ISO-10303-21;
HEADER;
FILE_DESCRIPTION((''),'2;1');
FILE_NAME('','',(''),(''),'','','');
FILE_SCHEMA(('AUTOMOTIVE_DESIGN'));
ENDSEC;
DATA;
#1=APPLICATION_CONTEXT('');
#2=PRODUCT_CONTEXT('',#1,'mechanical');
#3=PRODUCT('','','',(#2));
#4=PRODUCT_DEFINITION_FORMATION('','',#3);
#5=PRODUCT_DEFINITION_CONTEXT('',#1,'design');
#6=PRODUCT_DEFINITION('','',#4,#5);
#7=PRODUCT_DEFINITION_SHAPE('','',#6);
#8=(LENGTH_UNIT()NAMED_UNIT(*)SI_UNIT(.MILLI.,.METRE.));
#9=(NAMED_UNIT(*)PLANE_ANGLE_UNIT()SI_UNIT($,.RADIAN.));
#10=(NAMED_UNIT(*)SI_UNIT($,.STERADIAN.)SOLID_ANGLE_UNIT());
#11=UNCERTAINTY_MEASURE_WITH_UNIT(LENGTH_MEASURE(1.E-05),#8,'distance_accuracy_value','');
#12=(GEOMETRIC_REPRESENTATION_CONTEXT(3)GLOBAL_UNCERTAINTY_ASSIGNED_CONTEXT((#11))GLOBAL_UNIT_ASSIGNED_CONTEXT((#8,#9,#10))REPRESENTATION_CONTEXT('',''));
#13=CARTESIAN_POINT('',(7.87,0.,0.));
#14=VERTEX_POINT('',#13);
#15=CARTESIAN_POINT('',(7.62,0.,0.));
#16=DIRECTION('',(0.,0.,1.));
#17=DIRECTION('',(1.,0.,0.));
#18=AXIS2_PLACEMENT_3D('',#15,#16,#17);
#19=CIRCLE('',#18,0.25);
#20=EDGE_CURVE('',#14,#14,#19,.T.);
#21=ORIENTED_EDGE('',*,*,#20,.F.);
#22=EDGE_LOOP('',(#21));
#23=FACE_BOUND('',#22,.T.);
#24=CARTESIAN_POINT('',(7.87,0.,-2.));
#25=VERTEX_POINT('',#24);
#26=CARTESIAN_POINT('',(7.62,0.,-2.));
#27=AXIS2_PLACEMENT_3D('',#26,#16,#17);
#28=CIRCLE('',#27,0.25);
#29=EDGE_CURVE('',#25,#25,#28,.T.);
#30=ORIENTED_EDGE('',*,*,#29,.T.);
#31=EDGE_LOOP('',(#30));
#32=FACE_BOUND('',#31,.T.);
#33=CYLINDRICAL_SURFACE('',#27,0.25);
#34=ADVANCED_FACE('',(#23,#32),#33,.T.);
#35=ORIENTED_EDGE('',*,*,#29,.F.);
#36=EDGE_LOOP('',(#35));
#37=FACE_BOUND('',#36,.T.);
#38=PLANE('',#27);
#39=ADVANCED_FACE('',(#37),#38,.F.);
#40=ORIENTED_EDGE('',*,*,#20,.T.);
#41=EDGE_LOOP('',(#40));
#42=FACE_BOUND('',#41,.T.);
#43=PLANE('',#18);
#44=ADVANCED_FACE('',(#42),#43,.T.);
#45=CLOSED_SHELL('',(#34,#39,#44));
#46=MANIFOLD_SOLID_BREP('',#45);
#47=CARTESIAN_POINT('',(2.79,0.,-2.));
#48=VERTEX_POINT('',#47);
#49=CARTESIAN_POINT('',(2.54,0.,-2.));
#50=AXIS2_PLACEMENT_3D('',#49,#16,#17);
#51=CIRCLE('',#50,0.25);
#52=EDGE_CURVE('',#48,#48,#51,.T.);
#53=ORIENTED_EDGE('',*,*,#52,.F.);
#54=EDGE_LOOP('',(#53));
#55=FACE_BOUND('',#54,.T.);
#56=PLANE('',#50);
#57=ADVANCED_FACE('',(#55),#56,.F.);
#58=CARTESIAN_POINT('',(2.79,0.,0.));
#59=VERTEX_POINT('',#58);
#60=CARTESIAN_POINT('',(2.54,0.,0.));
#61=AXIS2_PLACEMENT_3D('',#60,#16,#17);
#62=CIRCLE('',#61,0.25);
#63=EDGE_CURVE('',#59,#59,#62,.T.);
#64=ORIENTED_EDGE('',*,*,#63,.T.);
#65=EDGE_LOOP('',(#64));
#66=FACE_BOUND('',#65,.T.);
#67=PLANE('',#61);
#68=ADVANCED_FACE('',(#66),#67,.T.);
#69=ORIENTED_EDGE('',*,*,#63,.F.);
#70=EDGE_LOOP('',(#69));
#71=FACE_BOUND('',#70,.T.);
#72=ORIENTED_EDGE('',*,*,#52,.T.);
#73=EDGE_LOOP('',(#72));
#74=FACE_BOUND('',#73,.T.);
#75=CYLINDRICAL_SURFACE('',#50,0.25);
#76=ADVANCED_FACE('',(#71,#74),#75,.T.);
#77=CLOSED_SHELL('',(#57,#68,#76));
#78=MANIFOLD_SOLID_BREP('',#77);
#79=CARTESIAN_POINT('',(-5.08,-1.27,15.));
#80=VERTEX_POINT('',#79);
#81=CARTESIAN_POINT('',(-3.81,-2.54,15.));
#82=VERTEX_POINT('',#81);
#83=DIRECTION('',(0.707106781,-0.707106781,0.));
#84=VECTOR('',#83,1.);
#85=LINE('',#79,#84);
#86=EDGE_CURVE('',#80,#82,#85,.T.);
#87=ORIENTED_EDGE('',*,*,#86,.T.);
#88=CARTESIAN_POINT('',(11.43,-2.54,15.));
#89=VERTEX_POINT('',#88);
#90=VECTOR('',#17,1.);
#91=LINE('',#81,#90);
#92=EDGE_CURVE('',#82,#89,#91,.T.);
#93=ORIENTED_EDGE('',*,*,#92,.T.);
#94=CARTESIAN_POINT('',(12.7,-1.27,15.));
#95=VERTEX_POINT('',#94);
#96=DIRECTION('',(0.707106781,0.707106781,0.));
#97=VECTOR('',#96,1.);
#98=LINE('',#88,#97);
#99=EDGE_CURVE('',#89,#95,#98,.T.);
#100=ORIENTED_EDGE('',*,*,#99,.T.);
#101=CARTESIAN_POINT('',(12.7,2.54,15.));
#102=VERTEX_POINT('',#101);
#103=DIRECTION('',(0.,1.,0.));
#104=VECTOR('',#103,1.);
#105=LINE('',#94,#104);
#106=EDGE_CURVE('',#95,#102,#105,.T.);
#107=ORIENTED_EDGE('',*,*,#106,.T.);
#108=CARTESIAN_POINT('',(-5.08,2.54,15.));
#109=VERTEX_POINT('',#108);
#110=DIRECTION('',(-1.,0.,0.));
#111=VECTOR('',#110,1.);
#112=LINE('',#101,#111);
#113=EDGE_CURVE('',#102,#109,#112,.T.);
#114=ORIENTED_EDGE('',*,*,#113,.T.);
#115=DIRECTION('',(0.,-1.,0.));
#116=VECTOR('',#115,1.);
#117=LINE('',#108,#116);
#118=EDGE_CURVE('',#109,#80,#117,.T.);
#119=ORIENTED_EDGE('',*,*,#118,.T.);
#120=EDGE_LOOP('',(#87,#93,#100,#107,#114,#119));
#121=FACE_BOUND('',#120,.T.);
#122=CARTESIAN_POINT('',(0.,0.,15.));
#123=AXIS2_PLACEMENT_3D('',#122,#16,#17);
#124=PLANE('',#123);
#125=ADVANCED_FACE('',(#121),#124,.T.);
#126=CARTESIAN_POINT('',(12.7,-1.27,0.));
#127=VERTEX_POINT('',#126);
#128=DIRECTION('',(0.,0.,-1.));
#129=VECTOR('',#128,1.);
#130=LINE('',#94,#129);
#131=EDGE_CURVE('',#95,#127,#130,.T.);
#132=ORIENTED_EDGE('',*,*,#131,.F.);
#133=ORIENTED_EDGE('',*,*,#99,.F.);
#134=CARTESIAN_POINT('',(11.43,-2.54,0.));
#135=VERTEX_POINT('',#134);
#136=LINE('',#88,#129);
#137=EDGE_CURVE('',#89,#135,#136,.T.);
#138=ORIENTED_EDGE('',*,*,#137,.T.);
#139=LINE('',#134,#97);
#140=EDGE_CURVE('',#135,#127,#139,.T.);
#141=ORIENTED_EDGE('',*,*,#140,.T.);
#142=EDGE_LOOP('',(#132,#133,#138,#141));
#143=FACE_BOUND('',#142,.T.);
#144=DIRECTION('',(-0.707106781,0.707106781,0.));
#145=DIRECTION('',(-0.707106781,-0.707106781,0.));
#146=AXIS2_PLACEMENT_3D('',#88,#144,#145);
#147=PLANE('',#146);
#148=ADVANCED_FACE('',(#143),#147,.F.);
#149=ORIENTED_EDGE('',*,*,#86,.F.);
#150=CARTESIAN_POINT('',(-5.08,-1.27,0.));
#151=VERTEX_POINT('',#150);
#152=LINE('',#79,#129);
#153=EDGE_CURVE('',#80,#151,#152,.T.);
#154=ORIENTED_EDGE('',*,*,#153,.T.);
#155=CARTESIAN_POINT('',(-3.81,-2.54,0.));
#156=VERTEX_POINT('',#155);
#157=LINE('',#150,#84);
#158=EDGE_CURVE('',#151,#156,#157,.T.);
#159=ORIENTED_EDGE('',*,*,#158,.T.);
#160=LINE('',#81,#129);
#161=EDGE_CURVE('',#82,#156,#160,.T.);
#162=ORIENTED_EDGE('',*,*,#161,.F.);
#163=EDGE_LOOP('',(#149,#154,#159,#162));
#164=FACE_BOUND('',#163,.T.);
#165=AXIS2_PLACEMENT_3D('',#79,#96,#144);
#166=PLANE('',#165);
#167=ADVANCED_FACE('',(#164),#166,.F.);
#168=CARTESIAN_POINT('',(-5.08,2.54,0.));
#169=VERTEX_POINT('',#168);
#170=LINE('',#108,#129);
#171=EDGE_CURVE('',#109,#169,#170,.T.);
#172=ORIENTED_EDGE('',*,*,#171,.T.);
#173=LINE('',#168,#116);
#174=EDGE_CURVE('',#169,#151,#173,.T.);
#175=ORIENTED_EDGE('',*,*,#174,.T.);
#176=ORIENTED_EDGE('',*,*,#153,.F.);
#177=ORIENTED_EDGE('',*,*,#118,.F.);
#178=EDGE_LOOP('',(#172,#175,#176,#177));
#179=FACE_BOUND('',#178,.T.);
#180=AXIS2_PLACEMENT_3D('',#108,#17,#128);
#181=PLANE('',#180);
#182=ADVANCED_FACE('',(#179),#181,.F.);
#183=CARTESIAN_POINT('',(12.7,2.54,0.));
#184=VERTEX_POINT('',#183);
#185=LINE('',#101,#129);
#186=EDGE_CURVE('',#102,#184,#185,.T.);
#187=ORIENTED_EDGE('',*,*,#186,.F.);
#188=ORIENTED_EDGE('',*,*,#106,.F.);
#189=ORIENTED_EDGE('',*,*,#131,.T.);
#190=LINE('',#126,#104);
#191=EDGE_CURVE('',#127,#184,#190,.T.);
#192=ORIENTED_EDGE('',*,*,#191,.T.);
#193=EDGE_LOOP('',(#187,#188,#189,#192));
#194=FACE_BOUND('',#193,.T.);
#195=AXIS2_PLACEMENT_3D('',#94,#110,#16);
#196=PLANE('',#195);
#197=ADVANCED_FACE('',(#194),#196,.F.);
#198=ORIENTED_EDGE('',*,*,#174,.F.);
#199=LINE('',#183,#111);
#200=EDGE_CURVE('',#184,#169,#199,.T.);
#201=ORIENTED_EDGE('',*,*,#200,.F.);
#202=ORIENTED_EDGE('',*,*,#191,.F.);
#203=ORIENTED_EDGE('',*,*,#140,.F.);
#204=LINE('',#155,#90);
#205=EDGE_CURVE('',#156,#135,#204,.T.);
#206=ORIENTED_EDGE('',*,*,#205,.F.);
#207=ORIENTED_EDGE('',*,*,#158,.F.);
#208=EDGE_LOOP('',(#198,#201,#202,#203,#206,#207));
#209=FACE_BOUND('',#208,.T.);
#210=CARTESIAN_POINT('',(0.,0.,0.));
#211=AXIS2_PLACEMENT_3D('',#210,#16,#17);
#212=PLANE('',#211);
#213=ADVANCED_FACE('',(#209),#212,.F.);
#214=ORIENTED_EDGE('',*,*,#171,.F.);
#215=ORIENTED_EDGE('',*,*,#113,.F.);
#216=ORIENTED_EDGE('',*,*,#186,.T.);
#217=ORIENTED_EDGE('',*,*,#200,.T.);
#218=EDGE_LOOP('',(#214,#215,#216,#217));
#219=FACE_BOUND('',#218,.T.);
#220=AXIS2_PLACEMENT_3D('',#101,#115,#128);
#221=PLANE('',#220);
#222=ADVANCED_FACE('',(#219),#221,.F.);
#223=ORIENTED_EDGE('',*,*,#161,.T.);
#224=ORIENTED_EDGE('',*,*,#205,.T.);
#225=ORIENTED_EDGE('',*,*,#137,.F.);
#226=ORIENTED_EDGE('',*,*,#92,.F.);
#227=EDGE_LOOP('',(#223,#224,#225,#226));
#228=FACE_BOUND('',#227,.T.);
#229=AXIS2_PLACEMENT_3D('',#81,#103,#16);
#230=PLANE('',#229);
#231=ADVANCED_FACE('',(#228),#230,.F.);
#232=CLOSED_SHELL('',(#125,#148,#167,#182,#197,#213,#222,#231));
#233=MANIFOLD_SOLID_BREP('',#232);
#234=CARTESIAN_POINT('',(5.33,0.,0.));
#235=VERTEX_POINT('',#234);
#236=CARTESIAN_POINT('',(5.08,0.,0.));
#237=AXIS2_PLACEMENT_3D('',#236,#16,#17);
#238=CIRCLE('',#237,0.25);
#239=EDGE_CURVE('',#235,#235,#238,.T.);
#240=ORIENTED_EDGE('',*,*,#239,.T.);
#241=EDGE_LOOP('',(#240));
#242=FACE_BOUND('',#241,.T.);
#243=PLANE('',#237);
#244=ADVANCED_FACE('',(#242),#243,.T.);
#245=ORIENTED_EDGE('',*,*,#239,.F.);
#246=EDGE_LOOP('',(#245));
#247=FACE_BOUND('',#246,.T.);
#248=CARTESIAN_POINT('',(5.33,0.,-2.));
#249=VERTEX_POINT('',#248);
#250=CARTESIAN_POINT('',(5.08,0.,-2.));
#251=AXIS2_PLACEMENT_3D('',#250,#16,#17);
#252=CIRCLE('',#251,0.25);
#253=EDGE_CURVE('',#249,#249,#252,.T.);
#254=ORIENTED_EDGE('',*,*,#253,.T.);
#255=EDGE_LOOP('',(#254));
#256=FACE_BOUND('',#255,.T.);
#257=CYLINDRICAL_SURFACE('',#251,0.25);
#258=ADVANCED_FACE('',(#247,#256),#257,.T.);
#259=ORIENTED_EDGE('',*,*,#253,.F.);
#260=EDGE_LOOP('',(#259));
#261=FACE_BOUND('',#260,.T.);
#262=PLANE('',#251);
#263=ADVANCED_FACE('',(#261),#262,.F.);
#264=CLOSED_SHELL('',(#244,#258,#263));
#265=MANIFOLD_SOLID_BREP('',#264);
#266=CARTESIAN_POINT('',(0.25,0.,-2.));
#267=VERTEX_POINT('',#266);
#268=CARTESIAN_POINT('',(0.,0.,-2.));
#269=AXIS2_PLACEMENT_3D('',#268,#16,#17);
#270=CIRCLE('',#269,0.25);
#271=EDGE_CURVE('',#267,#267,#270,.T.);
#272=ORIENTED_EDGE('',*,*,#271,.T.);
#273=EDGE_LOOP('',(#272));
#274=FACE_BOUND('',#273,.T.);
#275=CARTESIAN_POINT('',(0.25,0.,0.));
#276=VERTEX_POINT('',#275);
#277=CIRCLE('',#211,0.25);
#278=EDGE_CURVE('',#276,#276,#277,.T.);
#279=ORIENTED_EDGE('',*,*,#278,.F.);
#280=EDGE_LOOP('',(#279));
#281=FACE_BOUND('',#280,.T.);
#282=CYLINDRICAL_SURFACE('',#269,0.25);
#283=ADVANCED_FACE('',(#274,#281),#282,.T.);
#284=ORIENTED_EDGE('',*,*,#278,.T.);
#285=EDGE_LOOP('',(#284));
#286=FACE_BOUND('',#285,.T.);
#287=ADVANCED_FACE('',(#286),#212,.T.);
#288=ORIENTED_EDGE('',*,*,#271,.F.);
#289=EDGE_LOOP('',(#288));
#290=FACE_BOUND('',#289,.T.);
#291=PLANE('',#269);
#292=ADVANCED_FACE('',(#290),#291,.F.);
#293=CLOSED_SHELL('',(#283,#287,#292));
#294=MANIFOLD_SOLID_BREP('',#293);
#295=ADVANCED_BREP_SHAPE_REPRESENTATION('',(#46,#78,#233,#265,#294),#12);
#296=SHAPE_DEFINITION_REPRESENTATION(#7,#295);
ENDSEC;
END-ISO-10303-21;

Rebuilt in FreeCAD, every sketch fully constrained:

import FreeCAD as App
import Part
import Sketcher


def add_polygon(sketch, points):
    """Adds a closed chain of lines whose ends are joined by coincident constraints."""
    first, n = sketch.GeometryCount, len(points)
    for a, b in zip(points, points[1:] + points[:1]):
        sketch.addGeometry(Part.LineSegment(App.Vector(*a, 0), App.Vector(*b, 0)), False)
    for i in range(n):
        sketch.addConstraint(Sketcher.Constraint("Coincident", first + i, 2, first + (i + 1) % n, 1))

doc = App.newDocument("Part")
body = doc.addObject("PartDesign::Body", "Body")

sketch1 = body.newObject("Sketcher::SketchObject", "Sketch")
sketch1.AttachmentSupport = (doc.getObject("XY_Plane"), [""])
sketch1.MapMode = "FlatFace"
add_polygon(sketch1, [(-5.08, 2.54), (-5.08, -1.27), (-3.81, -2.54), (11.43, -2.54), (12.7, -1.27), (12.7, 2.54)])
sketch1.addConstraint(Sketcher.Constraint("Vertical", 0))
sketch1.addConstraint(Sketcher.Constraint("Horizontal", 2))
sketch1.addConstraint(Sketcher.Constraint("Vertical", 4))
sketch1.addConstraint(Sketcher.Constraint("Horizontal", 5))
sketch1.addConstraint(Sketcher.Constraint("Perpendicular", 1, 3))
sketch1.addConstraint(Sketcher.Constraint("Horizontal", 0, 2, 3, 2))
sketch1.addConstraint(Sketcher.Constraint("Equal", 1, 3))
sketch1.addConstraint(Sketcher.Constraint("DistanceX", 2, 1, 2, 2, 15.24))
sketch1.addConstraint(Sketcher.Constraint("DistanceX", 5, 2, 5, 1, 17.78))
sketch1.addConstraint(Sketcher.Constraint("DistanceY", 0, 2, 0, 1, 3.81))
sketch1.addConstraint(Sketcher.Constraint("DistanceX", -1, 1, 3, 2, 12.7))
sketch1.addConstraint(Sketcher.Constraint("DistanceY", 0, 2, -1, 1, 1.27))
pad1 = body.newObject("PartDesign::Pad", "Pad")
pad1.Profile = sketch1
pad1.Length = 15
body2 = doc.addObject("PartDesign::Body", "Body001")

sketch2 = body2.newObject("Sketcher::SketchObject", "Sketch001")
sketch2.AttachmentSupport = (doc.getObject("XY_Plane001"), [""])
sketch2.MapMode = "FlatFace"
sketch2.addGeometry(Part.Circle(App.Vector(0, 0, 0), App.Vector(0, 0, 1), 0.25), False)
sketch2.addConstraint(Sketcher.Constraint("Coincident", 0, 3, -1, 1))
sketch2.addConstraint(Sketcher.Constraint("Diameter", 0, 0.5))
pad2 = body2.newObject("PartDesign::Pad", "Pad001")
pad2.Profile = sketch2
pad2.Length = 2
pad2.Reversed = True
body3 = doc.addObject("PartDesign::Body", "Body002")

sketch3 = body3.newObject("Sketcher::SketchObject", "Sketch002")
sketch3.AttachmentSupport = (doc.getObject("XY_Plane002"), [""])
sketch3.MapMode = "FlatFace"
sketch3.addGeometry(Part.Circle(App.Vector(2.54, 0, 0), App.Vector(0, 0, 1), 0.25), False)
sketch3.addConstraint(Sketcher.Constraint("PointOnObject", 0, 3, -1))
sketch3.addConstraint(Sketcher.Constraint("Diameter", 0, 0.5))
sketch3.addConstraint(Sketcher.Constraint("DistanceX", -1, 1, 0, 3, 2.54))
pad3 = body3.newObject("PartDesign::Pad", "Pad002")
pad3.Profile = sketch3
pad3.Length = 2
pad3.Reversed = True
body4 = doc.addObject("PartDesign::Body", "Body003")

sketch4 = body4.newObject("Sketcher::SketchObject", "Sketch003")
sketch4.AttachmentSupport = (doc.getObject("XY_Plane003"), [""])
sketch4.MapMode = "FlatFace"
sketch4.addGeometry(Part.Circle(App.Vector(5.08, 0, 0), App.Vector(0, 0, 1), 0.25), False)
sketch4.addConstraint(Sketcher.Constraint("PointOnObject", 0, 3, -1))
sketch4.addConstraint(Sketcher.Constraint("Diameter", 0, 0.5))
sketch4.addConstraint(Sketcher.Constraint("DistanceX", -1, 1, 0, 3, 5.08))
pad4 = body4.newObject("PartDesign::Pad", "Pad003")
pad4.Profile = sketch4
pad4.Length = 2
pad4.Reversed = True
body5 = doc.addObject("PartDesign::Body", "Body004")

sketch5 = body5.newObject("Sketcher::SketchObject", "Sketch004")
sketch5.AttachmentSupport = (doc.getObject("XY_Plane004"), [""])
sketch5.MapMode = "FlatFace"
sketch5.addGeometry(Part.Circle(App.Vector(7.62, 0, 0), App.Vector(0, 0, 1), 0.25), False)
sketch5.addConstraint(Sketcher.Constraint("PointOnObject", 0, 3, -1))
sketch5.addConstraint(Sketcher.Constraint("Diameter", 0, 0.5))
sketch5.addConstraint(Sketcher.Constraint("DistanceX", -1, 1, 0, 3, 7.62))
pad5 = body5.newObject("PartDesign::Pad", "Pad004")
pad5.Profile = sketch5
pad5.Length = 2
pad5.Reversed = True

doc.recompute()
